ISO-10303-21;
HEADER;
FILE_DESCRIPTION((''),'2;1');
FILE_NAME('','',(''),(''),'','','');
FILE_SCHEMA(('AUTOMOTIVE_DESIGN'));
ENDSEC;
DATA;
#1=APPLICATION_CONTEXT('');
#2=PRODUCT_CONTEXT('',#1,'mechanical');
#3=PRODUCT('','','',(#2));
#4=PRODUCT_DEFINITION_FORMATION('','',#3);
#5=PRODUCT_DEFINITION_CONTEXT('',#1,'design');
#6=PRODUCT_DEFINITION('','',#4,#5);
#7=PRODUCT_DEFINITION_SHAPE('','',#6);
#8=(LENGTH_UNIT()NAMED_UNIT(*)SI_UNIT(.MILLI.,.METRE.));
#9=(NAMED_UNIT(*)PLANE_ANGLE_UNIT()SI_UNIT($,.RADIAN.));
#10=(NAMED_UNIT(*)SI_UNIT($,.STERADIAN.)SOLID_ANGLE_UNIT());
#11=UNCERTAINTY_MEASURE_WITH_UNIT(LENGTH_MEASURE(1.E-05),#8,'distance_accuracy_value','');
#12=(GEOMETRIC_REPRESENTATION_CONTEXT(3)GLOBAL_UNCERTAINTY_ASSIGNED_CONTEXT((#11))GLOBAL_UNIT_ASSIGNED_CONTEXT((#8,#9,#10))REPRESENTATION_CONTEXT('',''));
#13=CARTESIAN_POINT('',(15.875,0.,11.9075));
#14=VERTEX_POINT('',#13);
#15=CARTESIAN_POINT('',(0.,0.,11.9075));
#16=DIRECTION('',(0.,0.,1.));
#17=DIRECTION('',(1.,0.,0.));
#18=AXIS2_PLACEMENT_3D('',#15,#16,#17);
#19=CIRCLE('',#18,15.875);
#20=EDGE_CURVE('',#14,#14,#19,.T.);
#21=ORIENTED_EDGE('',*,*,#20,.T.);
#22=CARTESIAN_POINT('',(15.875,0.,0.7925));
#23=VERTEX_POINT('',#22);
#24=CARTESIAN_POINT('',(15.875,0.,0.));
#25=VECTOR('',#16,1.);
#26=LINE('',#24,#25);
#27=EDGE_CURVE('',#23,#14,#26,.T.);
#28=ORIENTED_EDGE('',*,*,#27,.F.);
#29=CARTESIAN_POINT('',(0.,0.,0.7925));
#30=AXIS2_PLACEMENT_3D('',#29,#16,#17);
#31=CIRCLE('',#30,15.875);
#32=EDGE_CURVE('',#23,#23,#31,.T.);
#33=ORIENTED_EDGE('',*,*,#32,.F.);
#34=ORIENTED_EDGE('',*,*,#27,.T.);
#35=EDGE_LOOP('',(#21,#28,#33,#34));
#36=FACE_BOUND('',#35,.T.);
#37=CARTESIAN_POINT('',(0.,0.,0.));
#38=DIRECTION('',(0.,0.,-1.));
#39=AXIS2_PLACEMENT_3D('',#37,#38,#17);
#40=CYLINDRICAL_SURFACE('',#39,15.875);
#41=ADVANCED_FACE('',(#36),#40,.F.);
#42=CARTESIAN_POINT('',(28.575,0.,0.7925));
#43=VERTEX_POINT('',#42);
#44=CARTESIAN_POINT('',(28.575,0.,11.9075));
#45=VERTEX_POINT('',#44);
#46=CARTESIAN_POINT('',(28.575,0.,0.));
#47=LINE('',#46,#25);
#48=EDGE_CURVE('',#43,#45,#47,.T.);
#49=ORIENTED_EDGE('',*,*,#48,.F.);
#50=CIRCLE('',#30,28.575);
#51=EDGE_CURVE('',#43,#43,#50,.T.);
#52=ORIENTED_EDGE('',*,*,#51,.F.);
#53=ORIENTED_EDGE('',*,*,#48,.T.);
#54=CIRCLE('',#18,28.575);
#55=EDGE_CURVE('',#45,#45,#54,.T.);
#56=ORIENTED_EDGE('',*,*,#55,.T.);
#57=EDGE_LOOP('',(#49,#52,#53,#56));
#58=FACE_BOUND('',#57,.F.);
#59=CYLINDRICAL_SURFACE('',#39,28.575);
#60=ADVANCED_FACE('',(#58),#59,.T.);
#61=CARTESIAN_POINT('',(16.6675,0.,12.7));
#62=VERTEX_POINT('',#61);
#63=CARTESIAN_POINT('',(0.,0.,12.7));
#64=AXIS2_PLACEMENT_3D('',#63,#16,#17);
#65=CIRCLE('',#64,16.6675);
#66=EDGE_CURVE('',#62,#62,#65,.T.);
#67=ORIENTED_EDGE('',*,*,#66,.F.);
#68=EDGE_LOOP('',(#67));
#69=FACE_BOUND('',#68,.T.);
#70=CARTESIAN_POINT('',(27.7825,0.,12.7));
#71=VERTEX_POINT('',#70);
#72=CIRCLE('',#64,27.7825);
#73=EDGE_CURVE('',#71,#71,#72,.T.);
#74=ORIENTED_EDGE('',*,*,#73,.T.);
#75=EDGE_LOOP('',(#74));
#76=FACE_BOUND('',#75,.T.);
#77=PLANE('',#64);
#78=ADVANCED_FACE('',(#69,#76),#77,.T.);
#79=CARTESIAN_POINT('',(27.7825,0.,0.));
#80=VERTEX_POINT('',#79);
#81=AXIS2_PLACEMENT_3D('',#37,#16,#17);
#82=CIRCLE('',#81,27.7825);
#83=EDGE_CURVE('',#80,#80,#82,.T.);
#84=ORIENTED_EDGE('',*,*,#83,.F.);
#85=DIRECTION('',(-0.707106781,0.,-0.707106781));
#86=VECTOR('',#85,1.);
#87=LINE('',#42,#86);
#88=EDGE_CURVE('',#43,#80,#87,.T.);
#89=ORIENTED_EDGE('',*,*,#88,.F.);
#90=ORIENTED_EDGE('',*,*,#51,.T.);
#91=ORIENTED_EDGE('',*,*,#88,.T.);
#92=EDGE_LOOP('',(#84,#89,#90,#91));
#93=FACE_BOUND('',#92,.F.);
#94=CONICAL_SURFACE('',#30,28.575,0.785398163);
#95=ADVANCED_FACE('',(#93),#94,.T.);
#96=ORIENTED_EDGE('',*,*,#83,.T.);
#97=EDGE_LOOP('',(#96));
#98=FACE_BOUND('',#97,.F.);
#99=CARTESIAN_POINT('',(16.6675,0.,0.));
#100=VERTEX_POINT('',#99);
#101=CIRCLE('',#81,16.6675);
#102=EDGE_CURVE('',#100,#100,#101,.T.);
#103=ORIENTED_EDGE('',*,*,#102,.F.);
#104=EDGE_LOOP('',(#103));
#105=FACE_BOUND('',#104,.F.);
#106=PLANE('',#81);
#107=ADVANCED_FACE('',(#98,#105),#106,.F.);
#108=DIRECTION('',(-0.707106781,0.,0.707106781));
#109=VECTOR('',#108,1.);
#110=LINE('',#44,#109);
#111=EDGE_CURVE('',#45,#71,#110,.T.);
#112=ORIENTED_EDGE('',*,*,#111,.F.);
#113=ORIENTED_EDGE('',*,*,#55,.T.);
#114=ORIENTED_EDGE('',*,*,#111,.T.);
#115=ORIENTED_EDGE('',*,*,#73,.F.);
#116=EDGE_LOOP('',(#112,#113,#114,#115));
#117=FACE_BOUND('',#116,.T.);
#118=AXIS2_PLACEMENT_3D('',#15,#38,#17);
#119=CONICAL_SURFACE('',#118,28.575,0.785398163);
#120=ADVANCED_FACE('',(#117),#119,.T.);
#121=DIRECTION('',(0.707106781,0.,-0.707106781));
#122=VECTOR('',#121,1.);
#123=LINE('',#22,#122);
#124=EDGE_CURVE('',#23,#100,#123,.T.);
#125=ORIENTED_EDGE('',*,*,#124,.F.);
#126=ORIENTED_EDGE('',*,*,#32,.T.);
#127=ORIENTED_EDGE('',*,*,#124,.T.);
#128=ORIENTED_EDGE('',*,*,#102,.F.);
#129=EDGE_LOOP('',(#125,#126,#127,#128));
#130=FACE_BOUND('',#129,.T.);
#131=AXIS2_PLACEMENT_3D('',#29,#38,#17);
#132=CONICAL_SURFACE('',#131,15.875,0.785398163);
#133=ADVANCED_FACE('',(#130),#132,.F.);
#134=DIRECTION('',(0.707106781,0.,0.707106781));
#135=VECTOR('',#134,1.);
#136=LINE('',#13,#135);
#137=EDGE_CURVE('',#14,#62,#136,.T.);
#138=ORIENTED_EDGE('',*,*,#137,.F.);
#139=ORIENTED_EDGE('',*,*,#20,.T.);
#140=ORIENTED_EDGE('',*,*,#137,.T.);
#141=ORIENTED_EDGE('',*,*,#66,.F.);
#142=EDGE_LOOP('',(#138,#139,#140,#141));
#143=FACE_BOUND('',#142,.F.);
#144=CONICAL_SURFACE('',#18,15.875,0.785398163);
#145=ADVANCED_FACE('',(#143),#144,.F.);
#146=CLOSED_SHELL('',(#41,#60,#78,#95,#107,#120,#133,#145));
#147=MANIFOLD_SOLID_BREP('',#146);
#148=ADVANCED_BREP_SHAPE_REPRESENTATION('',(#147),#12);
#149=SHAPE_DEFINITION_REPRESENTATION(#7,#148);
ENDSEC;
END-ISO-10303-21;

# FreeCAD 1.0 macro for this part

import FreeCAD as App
import Part
import Sketcher
from FreeCAD import Vector
Q = App.Units.Quantity


def edges_at(feature, points):
    """Names of the edges that pass closest to the given points."""
    edges = feature.Shape.Edges
    near = lambda p: min(range(len(edges)), key=lambda i: edges[i].distToShape(Part.Vertex(*p))[0])
    return sorted({f"Edge{near(p) + 1}" for p in points})

doc = App.newDocument("Part")
body = doc.addObject("PartDesign::Body", "Body")

sketch1 = body.newObject("Sketcher::SketchObject", "Sketch")
sketch1.AttachmentSupport = (doc.getObject("XY_Plane"), [""])
sketch1.MapMode = "FlatFace"
sketch1.addGeometry([
    Part.Circle(Vector(0, 0, 0), Vector(0, 0, 1), 28.575),
    Part.Circle(Vector(0, 0, 0), Vector(0, 0, 1), 15.875),
], False)
sketch1.addConstraint([
    Sketcher.Constraint("Coincident", 0, 3, -1, 1),
    Sketcher.Constraint("Coincident", 1, 3, -1, 1),
    Sketcher.Constraint("Diameter", 0, Q("2.25 in")),
    Sketcher.Constraint("Diameter", 1, Q("1.25 in")),
])
pad1 = body.newObject("PartDesign::Pad", "Pad")
pad1.Profile = sketch1
pad1.Length = Q("0.5 in")
doc.recompute()

chamfer = body.newObject("PartDesign::Chamfer", "Chamfer")
chamfer.Base = (pad1, edges_at(pad1, [
    (-15.875, 0, 12.7),
    (-15.875, 0, 0),
    (-28.575, 0, 12.7),
    (-28.575, 0, 0),
]))
chamfer.Size = Q("0.0312008 in")

doc.recompute()
